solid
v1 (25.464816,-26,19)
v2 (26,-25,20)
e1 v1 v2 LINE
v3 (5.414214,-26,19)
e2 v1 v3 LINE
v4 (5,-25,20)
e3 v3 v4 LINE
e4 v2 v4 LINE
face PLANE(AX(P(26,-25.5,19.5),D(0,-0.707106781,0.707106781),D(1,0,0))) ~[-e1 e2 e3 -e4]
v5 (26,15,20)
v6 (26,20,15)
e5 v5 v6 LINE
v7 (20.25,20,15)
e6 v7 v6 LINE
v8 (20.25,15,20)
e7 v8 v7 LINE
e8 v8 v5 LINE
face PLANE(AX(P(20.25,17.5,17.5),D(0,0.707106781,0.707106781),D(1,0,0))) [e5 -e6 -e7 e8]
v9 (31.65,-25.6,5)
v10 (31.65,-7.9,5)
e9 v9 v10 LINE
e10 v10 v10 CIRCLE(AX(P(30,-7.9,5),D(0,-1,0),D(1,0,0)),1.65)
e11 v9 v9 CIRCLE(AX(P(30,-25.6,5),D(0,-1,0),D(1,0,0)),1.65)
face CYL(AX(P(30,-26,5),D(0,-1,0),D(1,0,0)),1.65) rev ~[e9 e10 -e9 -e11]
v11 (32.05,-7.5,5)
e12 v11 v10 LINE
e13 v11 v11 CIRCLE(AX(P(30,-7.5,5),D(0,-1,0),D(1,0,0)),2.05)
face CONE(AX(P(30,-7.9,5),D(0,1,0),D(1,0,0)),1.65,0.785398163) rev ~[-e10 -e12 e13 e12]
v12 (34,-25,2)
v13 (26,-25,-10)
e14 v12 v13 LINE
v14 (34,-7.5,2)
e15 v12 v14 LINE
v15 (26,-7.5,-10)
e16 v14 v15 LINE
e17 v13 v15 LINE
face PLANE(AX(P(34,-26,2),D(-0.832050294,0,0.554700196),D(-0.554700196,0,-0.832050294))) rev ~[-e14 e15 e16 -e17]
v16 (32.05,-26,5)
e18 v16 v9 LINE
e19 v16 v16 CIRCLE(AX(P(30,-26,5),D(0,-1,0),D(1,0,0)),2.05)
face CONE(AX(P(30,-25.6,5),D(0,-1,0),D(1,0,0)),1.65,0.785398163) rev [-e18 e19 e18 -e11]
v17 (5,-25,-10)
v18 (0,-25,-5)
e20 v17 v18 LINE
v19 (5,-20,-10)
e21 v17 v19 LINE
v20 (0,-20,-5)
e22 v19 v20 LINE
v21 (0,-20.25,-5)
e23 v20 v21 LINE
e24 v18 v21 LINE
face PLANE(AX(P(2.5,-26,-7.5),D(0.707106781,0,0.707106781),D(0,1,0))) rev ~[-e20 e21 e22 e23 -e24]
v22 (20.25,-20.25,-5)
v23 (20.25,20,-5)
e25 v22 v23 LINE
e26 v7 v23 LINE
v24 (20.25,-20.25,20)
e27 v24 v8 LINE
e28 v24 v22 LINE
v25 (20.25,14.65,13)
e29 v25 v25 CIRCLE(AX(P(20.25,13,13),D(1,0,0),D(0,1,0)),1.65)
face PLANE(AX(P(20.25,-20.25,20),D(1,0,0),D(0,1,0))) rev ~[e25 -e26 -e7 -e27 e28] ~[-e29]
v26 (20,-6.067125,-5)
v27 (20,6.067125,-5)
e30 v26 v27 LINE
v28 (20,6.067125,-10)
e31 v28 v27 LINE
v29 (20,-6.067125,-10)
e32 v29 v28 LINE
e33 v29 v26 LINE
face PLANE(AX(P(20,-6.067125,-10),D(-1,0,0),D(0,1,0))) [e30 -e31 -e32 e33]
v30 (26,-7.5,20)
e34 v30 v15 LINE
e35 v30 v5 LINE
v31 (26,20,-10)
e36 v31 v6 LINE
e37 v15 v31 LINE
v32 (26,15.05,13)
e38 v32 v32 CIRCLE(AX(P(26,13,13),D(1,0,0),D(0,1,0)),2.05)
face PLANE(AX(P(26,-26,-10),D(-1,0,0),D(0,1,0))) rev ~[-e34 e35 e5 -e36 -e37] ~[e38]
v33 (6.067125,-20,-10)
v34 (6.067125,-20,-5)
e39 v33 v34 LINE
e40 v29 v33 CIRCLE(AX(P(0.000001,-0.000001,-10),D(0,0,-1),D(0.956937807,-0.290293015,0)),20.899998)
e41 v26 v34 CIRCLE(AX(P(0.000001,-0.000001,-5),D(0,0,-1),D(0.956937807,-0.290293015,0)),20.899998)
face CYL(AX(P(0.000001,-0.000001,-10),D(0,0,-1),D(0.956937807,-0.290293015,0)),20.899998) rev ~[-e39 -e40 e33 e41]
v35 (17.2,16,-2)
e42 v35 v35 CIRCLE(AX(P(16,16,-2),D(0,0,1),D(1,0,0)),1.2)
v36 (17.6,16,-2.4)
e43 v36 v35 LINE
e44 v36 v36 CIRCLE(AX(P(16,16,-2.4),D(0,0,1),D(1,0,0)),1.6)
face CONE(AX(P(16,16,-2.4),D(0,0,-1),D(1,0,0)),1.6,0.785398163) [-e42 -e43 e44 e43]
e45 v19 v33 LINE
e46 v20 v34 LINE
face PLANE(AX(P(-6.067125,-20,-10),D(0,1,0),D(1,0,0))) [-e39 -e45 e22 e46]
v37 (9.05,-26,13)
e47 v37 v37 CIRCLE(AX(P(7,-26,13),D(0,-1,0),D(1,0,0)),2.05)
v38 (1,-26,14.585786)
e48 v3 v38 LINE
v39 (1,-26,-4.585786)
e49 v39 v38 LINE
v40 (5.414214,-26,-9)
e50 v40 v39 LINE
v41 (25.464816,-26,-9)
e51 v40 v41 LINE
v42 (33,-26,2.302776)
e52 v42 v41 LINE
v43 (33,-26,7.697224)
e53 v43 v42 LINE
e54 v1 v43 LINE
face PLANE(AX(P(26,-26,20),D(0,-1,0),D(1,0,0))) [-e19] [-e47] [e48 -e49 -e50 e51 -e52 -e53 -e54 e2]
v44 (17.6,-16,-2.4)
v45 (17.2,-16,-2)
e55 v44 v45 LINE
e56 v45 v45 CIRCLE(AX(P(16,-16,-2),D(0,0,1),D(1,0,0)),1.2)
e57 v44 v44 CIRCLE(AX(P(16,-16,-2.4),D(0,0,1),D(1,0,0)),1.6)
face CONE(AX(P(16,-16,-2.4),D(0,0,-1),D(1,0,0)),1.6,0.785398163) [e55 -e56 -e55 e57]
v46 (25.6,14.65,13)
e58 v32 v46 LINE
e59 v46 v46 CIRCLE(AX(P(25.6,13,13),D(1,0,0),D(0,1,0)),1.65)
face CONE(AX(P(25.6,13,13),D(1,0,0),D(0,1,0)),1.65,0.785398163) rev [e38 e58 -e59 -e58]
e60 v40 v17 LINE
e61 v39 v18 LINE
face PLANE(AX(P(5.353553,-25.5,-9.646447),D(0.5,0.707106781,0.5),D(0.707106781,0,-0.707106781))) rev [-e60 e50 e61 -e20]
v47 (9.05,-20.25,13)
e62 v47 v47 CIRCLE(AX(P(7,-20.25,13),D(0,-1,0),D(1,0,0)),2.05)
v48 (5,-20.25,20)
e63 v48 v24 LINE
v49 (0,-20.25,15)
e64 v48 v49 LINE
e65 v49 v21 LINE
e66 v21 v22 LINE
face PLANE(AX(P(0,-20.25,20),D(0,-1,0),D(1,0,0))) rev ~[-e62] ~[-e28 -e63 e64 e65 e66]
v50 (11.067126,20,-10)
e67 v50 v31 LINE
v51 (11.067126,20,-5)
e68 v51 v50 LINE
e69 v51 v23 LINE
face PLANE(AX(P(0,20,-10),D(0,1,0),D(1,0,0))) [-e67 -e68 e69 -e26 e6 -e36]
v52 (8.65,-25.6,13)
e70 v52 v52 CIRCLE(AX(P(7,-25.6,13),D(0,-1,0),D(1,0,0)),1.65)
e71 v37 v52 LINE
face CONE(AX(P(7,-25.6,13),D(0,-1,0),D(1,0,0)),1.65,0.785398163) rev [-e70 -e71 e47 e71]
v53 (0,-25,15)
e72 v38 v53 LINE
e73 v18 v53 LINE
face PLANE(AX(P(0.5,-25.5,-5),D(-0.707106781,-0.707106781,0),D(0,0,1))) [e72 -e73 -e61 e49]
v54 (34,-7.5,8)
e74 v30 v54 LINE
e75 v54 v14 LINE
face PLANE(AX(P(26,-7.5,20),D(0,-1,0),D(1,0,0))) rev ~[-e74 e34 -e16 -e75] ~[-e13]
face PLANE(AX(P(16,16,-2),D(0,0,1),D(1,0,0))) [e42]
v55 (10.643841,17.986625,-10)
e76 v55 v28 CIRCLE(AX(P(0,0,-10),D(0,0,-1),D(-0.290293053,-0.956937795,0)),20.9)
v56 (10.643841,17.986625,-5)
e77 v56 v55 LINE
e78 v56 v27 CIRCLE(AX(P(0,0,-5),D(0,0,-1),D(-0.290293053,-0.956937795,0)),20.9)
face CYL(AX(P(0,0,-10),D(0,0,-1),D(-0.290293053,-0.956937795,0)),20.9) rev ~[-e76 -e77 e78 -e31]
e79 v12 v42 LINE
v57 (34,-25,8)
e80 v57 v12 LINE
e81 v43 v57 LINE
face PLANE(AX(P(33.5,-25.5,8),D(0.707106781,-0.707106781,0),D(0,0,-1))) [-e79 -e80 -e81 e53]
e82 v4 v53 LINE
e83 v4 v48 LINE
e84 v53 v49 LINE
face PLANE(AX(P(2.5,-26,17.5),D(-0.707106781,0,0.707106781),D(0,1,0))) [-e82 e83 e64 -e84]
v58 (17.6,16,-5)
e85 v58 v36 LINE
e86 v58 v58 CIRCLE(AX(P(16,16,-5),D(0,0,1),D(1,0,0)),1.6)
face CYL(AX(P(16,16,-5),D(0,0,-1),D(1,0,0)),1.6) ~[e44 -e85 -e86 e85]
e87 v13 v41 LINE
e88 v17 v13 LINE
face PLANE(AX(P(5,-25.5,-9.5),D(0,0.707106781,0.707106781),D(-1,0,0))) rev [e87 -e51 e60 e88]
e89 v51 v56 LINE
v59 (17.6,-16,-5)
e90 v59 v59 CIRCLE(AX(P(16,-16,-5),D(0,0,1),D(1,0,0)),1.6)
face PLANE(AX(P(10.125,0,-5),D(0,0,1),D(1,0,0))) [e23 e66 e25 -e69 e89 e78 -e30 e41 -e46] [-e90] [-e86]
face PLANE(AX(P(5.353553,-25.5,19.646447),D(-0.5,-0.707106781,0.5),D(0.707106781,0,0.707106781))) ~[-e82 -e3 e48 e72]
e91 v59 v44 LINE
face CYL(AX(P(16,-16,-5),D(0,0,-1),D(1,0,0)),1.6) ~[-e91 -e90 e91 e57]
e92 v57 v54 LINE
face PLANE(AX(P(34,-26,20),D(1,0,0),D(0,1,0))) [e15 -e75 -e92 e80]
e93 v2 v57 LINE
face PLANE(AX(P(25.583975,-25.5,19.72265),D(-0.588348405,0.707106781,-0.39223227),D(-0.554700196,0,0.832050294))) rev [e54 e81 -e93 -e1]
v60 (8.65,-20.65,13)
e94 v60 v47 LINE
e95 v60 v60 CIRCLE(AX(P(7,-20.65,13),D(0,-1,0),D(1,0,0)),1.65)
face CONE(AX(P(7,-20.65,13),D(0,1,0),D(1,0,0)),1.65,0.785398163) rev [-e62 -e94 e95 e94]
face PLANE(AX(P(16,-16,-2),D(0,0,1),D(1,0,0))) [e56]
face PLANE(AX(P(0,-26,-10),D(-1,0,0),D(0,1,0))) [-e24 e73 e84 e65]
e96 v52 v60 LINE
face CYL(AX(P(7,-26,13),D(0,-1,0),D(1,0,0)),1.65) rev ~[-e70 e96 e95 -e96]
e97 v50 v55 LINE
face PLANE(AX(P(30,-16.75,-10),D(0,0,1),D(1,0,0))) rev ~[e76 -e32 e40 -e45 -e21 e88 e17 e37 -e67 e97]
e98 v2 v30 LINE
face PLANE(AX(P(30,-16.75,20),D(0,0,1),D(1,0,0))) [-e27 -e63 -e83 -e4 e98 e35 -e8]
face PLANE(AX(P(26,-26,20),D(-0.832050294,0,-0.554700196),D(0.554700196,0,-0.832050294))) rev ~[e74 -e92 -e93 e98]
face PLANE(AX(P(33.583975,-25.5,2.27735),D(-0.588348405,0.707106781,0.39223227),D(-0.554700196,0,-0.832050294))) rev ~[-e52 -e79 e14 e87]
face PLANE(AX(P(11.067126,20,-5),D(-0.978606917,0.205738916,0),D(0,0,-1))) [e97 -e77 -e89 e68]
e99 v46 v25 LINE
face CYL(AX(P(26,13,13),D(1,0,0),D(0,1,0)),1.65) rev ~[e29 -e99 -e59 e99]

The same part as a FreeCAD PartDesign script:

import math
import FreeCAD as App
import Part
import Sketcher
from FreeCAD import Vector


def edges_at(feature, points):
    """Names of the edges that pass closest to the given points."""
    edges = feature.Shape.Edges
    near = lambda p: min(range(len(edges)), key=lambda i: edges[i].distToShape(Part.Vertex(*p))[0])
    return sorted({f"Edge{near(p) + 1}" for p in points})

doc = App.newDocument("Part")
body = doc.addObject("PartDesign::Body", "Body")

# Sketch on XY plane
sketch1 = doc.addObject("Sketcher::SketchObject", "Sketch")
body.addObject(sketch1)
sketch1.AttachmentSupport = (doc.XY_Plane, [""])
sketch1.MapMode = "FlatFace"
sketch1.addGeometry(Part.LineSegment(Vector(0, 20, 0), Vector(0, -26, 0)), False)
sketch1.addGeometry(Part.LineSegment(Vector(0, -26, 0), Vector(26, -26, 0)), False)
sketch1.addGeometry(Part.LineSegment(Vector(26, -26, 0), Vector(26, 20, 0)), False)
sketch1.addGeometry(Part.LineSegment(Vector(26, 20, 0), Vector(0, 20, 0)), False)
sketch1.addConstraint(Sketcher.Constraint("Coincident", 0, 2, 1, 1))
sketch1.addConstraint(Sketcher.Constraint("Coincident", 1, 2, 2, 1))
sketch1.addConstraint(Sketcher.Constraint("Coincident", 2, 2, 3, 1))
sketch1.addConstraint(Sketcher.Constraint("Coincident", 3, 2, 0, 1))
sketch1.addConstraint(Sketcher.Constraint("Vertical", 0))
sketch1.addConstraint(Sketcher.Constraint("Horizontal", 1))
sketch1.addConstraint(Sketcher.Constraint("Vertical", 2))
sketch1.addConstraint(Sketcher.Constraint("Horizontal", 3))
sketch1.addConstraint(Sketcher.Constraint("PointOnObject", 0, 2, -2))
sketch1.addConstraint(Sketcher.Constraint("DistanceX", 1, 1, 1, 2, 26.0))
sketch1.addConstraint(Sketcher.Constraint("DistanceY", 0, 2, 0, 1, 46.0))
sketch1.addConstraint(Sketcher.Constraint("DistanceY", 0, 2, -1, 1, 26.0))
pad1 = doc.addObject("PartDesign::Pad", "Pad")
body.addObject(pad1)
pad1.Profile = sketch1
pad1.Length = 30

# Sketch on XY plane
sketch2 = doc.addObject("Sketcher::SketchObject", "Sketch001")
body.addObject(sketch2)
sketch2.AttachmentSupport = (doc.XY_Plane, [""])
sketch2.MapMode = "FlatFace"
sketch2.addGeometry(Part.ArcOfCircle(Part.Circle(Vector(0, 0, 0), Vector(0, 0, 1), 20.9), math.radians(16.875502), math.radians(253.124498)), False)
sketch2.addGeometry(Part.LineSegment(Vector(20, 6.067125, 0), Vector(20, -6.067125, 0)), False)
sketch2.addGeometry(Part.ArcOfCircle(Part.Circle(Vector(0.000001, -0.000001, 0), Vector(0, 0, 1), 20.899998), math.radians(-73.124501), math.radians(-16.875499)), False)
sketch2.addGeometry(Part.LineSegment(Vector(6.067125, -20, 0), Vector(-6.067125, -20, 0)), False)
sketch2.addConstraint(Sketcher.Constraint("Coincident", 0, 1, 1, 1))
sketch2.addConstraint(Sketcher.Constraint("Coincident", 1, 2, 2, 2))
sketch2.addConstraint(Sketcher.Constraint("Coincident", 2, 1, 3, 1))
sketch2.addConstraint(Sketcher.Constraint("Coincident", 3, 2, 0, 2))
sketch2.addConstraint(Sketcher.Constraint("Vertical", 1))
sketch2.addConstraint(Sketcher.Constraint("Horizontal", 3))
sketch2.addConstraint(Sketcher.Constraint("Coincident", 0, 3, -1, 1))
sketch2.addConstraint(Sketcher.Constraint("Coincident", 2, 3, -1, 1))
sketch2.addConstraint(Sketcher.Constraint("Equal", 0, 2))
sketch2.addConstraint(Sketcher.Constraint("Equal", 3, 1))
sketch2.addConstraint(Sketcher.Constraint("Radius", 0, 20.9))
sketch2.addConstraint(Sketcher.Constraint("DistanceX", -1, 1, 0, 1, 20.0))
pocket1 = doc.addObject("PartDesign::Pocket", "Pocket")
body.addObject(pocket1)
pocket1.Profile = sketch2
pocket1.Length = 5
pocket1.Reversed = True

# Sketch on XY plane
sketch3 = doc.addObject("Sketcher::SketchObject", "Sketch002")
body.addObject(sketch3)
sketch3.AttachmentSupport = (doc.XY_Plane, [""])
sketch3.MapMode = "FlatFace"
sketch3.AttachmentOffset = App.Placement(Vector(0, 0, 30), App.Rotation())
sketch3.addGeometry(Part.LineSegment(Vector(0, 20.25, 0), Vector(0, -20.25, 0)), False)
sketch3.addGeometry(Part.LineSegment(Vector(0, -20.25, 0), Vector(20.25, -20.25, 0)), False)
sketch3.addGeometry(Part.LineSegment(Vector(20.25, -20.25, 0), Vector(20.25, 20.25, 0)), False)
sketch3.addGeometry(Part.LineSegment(Vector(20.25, 20.25, 0), Vector(0, 20.25, 0)), False)
sketch3.addConstraint(Sketcher.Constraint("Coincident", 0, 2, 1, 1))
sketch3.addConstraint(Sketcher.Constraint("Coincident", 1, 2, 2, 1))
sketch3.addConstraint(Sketcher.Constraint("Coincident", 2, 2, 3, 1))
sketch3.addConstraint(Sketcher.Constraint("Coincident", 3, 2, 0, 1))
sketch3.addConstraint(Sketcher.Constraint("Vertical", 0))
sketch3.addConstraint(Sketcher.Constraint("Horizontal", 1))
sketch3.addConstraint(Sketcher.Constraint("Vertical", 2))
sketch3.addConstraint(Sketcher.Constraint("Horizontal", 3))
sketch3.addConstraint(Sketcher.Constraint("Symmetric", 0, 2, 3, 2, -1, 1))
sketch3.addConstraint(Sketcher.Constraint("DistanceY", 0, 2, 0, 1, 40.5))
sketch3.addConstraint(Sketcher.Constraint("DistanceX", 1, 1, 1, 2, 20.25))
pocket2 = doc.addObject("PartDesign::Pocket", "Pocket001")
body.addObject(pocket2)
pocket2.Profile = sketch3
pocket2.Length = 25

# Sketch on XY plane
sketch4 = doc.addObject("Sketcher::SketchObject", "Sketch003")
body.addObject(sketch4)
sketch4.AttachmentSupport = (doc.XY_Plane, [""])
sketch4.MapMode = "FlatFace"
sketch4.AttachmentOffset = App.Placement(Vector(0, 0, 5), App.Rotation())
sketch4.addGeometry(Part.Circle(Vector(16, 16, 0), Vector(0, 0, 1), 1.6), False)
sketch4.addGeometry(Part.Circle(Vector(16, -16, 0), Vector(0, 0, 1), 1.6), False)
sketch4.addConstraint(Sketcher.Constraint("Equal", 0, 1))
sketch4.addConstraint(Sketcher.Constraint("Symmetric", 0, 3, 1, 3, -1))
sketch4.addConstraint(Sketcher.Constraint("Diameter", 0, 3.2))
sketch4.addConstraint(Sketcher.Constraint("DistanceX", -1, 1, 0, 3, 16.0))
sketch4.addConstraint(Sketcher.Constraint("DistanceY", -1, 1, 0, 3, 16.0))
pad2 = doc.addObject("PartDesign::Pad", "Pad001")
body.addObject(pad2)
pad2.Profile = sketch4
pad2.Length = 3

# Sketch on XY plane
sketch5 = doc.addObject("Sketcher::SketchObject", "Sketch004")
body.addObject(sketch5)
sketch5.AttachmentSupport = (doc.XY_Plane, [""])
sketch5.MapMode = "FlatFace"
sketch5.AttachmentOffset = App.Placement(Vector(0, 0, 30), App.Rotation())
sketch5.addGeometry(Part.LineSegment(Vector(26, -7.5, 0), Vector(26, -26, 0)), False)
sketch5.addGeometry(Part.LineSegment(Vector(26, -26, 0), Vector(34, -26, 0)), False)
sketch5.addGeometry(Part.LineSegment(Vector(34, -26, 0), Vector(34, -7.5, 0)), False)
sketch5.addGeometry(Part.LineSegment(Vector(34, -7.5, 0), Vector(26, -7.5, 0)), False)
sketch5.addConstraint(Sketcher.Constraint("Coincident", 0, 2, 1, 1))
sketch5.addConstraint(Sketcher.Constraint("Coincident", 1, 2, 2, 1))
sketch5.addConstraint(Sketcher.Constraint("Coincident", 2, 2, 3, 1))
sketch5.addConstraint(Sketcher.Constraint("Coincident", 3, 2, 0, 1))
sketch5.addConstraint(Sketcher.Constraint("Vertical", 0))
sketch5.addConstraint(Sketcher.Constraint("Horizontal", 1))
sketch5.addConstraint(Sketcher.Constraint("Vertical", 2))
sketch5.addConstraint(Sketcher.Constraint("Horizontal", 3))
sketch5.addConstraint(Sketcher.Constraint("DistanceX", 1, 1, 1, 2, 8.0))
sketch5.addConstraint(Sketcher.Constraint("DistanceY", 0, 2, 0, 1, 18.5))
sketch5.addConstraint(Sketcher.Constraint("DistanceX", -1, 1, 0, 2, 26.0))
sketch5.addConstraint(Sketcher.Constraint("DistanceY", 0, 2, -1, 1, 26.0))
pad3 = doc.addObject("PartDesign::Pad", "Pad002")
body.addObject(pad3)
pad3.Profile = sketch5
pad3.Length = 30
pad3.Reversed = True

# Sketch on XZ plane
sketch6 = doc.addObject("Sketcher::SketchObject", "Sketch005")
body.addObject(sketch6)
sketch6.AttachmentSupport = (doc.XZ_Plane, [""])
sketch6.MapMode = "FlatFace"
sketch6.AttachmentOffset = App.Placement(Vector(0, 0, 26), App.Rotation())
sketch6.addGeometry(Part.LineSegment(Vector(34, 12, 0), Vector(26, 0, 0)), False)
sketch6.addGeometry(Part.LineSegment(Vector(26, 0, 0), Vector(34, 0, 0)), False)
sketch6.addGeometry(Part.LineSegment(Vector(34, 0, 0), Vector(34, 12, 0)), False)
sketch6.addGeometry(Part.LineSegment(Vector(34, 30, 0), Vector(26, 30, 0)), False)
sketch6.addGeometry(Part.LineSegment(Vector(26, 30, 0), Vector(34, 18, 0)), False)
sketch6.addGeometry(Part.LineSegment(Vector(34, 18, 0), Vector(34, 30, 0)), False)
sketch6.addConstraint(Sketcher.Constraint("Coincident", 0, 2, 1, 1))
sketch6.addConstraint(Sketcher.Constraint("Coincident", 1, 2, 2, 1))
sketch6.addConstraint(Sketcher.Constraint("Coincident", 2, 2, 0, 1))
sketch6.addConstraint(Sketcher.Constraint("Coincident", 3, 2, 4, 1))
sketch6.addConstraint(Sketcher.Constraint("Coincident", 4, 2, 5, 1))
sketch6.addConstraint(Sketcher.Constraint("Coincident", 5, 2, 3, 1))
sketch6.addConstraint(Sketcher.Constraint("Horizontal", 1))
sketch6.addConstraint(Sketcher.Constraint("Vertical", 2))
sketch6.addConstraint(Sketcher.Constraint("Horizontal", 3))
sketch6.addConstraint(Sketcher.Constraint("Vertical", 5))
sketch6.addConstraint(Sketcher.Constraint("PointOnObject", 0, 2, -1))
sketch6.addConstraint(Sketcher.Constraint("Vertical", 0, 2, 3, 2))
sketch6.addConstraint(Sketcher.Constraint("Vertical", 2, 2, 4, 2))
sketch6.addConstraint(Sketcher.Constraint("Equal", 2, 5))
sketch6.addConstraint(Sketcher.Constraint("DistanceX", 1, 1, 1, 2, 8.0))
sketch6.addConstraint(Sketcher.Constraint("DistanceY", 2, 1, 2, 2, 12.0))
sketch6.addConstraint(Sketcher.Constraint("DistanceX", -1, 1, 0, 2, 26.0))
sketch6.addConstraint(Sketcher.Constraint("DistanceY", -1, 1, 3, 2, 30.0))
pocket3 = doc.addObject("PartDesign::Pocket", "Pocket002")
body.addObject(pocket3)
pocket3.Profile = sketch6
pocket3.Type = "ThroughAll"

# Sketch on XZ plane
sketch7 = doc.addObject("Sketcher::SketchObject", "Sketch006")
body.addObject(sketch7)
sketch7.AttachmentSupport = (doc.XZ_Plane, [""])
sketch7.MapMode = "FlatFace"
sketch7.AttachmentOffset = App.Placement(Vector(0, 0, 26), App.Rotation())
sketch7.addGeometry(Part.Circle(Vector(7, 23, 0), Vector(0, 0, 1), 1.65), False)
sketch7.addGeometry(Part.Circle(Vector(30, 15, 0), Vector(0, 0, 1), 1.65), False)
sketch7.addConstraint(Sketcher.Constraint("Equal", 0, 1))
sketch7.addConstraint(Sketcher.Constraint("Diameter", 0, 3.3))
sketch7.addConstraint(Sketcher.Constraint("DistanceX", -1, 1, 0, 3, 7.0))
sketch7.addConstraint(Sketcher.Constraint("DistanceY", -1, 1, 0, 3, 23.0))
sketch7.addConstraint(Sketcher.Constraint("DistanceX", -1, 1, 1, 3, 30.0))
sketch7.addConstraint(Sketcher.Constraint("DistanceY", -1, 1, 1, 3, 15.0))
pocket4 = doc.addObject("PartDesign::Pocket", "Pocket003")
body.addObject(pocket4)
pocket4.Profile = sketch7
pocket4.Type = "ThroughAll"

# Sketch on YZ plane
sketch8 = doc.addObject("Sketcher::SketchObject", "Sketch007")
body.addObject(sketch8)
sketch8.AttachmentSupport = (doc.YZ_Plane, [""])
sketch8.MapMode = "FlatFace"
sketch8.AttachmentOffset = App.Placement(Vector(0, 0, 26), App.Rotation())
sketch8.addGeometry(Part.Circle(Vector(13, 23, 0), Vector(0, 0, 1), 1.65), False)
sketch8.addConstraint(Sketcher.Constraint("Diameter", 0, 3.3))
sketch8.addConstraint(Sketcher.Constraint("DistanceX", -1, 1, 0, 3, 13.0))
sketch8.addConstraint(Sketcher.Constraint("DistanceY", -1, 1, 0, 3, 23.0))
pocket5 = doc.addObject("PartDesign::Pocket", "Pocket004")
body.addObject(pocket5)
pocket5.Profile = sketch8
pocket5.Type = "ThroughAll"
doc.recompute()

chamfer = doc.addObject("PartDesign::Chamfer", "Chamfer")
body.addObject(chamfer)
chamfer.Base = (pocket5, edges_at(pocket5, [(0, -23.125, 30), (23.125, 20, 30), (0, -23, 0)]))
chamfer.Size = 5
doc.recompute()

chamfer2 = doc.addObject("PartDesign::Chamfer", "Chamfer001")
body.addObject(chamfer2)
chamfer2.Base = (chamfer, edges_at(chamfer, [(6.067, 20, 2.5)]))
chamfer2.Size = 5
doc.recompute()

chamfer3 = doc.addObject("PartDesign::Chamfer", "Chamfer002")
body.addObject(chamfer3)
chamfer3.Base = (chamfer2, edges_at(chamfer2, [
    (0, -26, 15),
    (2.5, -26, 2.5),
    (15.5, -26, 0),
    (30, -26, 6),
    (34, -26, 15),
    (30, -26, 24),
    (2.5, -26, 27.5),
    (15.5, -26, 30),
]))
chamfer3.Size = 1
doc.recompute()

chamfer4 = doc.addObject("PartDesign::Chamfer", "Chamfer003")
body.addObject(chamfer4)
chamfer4.Base = (chamfer3, edges_at(chamfer3, [
    (5.35, -26, 23),
    (28.35, -26, 15),
    (28.35, -7.5, 15),
    (26, 11.35, 23),
    (14.4, 16, 8),
    (14.4, -16, 8),
    (5.35, -20.25, 23),
]))
chamfer4.Size = 0.4
body2 = doc.addObject("PartDesign::Body", "Body001")
doc.recompute()

body.Placement = App.Placement(Vector(0, 0, -10), App.Rotation(Vector(0, 0, 1), 0))
boolean = doc.addObject("PartDesign::Boolean", "Boolean")
body2.addObject(boolean)
boolean.Type = "Fuse"
boolean.addObjects([body])

doc.recompute()
